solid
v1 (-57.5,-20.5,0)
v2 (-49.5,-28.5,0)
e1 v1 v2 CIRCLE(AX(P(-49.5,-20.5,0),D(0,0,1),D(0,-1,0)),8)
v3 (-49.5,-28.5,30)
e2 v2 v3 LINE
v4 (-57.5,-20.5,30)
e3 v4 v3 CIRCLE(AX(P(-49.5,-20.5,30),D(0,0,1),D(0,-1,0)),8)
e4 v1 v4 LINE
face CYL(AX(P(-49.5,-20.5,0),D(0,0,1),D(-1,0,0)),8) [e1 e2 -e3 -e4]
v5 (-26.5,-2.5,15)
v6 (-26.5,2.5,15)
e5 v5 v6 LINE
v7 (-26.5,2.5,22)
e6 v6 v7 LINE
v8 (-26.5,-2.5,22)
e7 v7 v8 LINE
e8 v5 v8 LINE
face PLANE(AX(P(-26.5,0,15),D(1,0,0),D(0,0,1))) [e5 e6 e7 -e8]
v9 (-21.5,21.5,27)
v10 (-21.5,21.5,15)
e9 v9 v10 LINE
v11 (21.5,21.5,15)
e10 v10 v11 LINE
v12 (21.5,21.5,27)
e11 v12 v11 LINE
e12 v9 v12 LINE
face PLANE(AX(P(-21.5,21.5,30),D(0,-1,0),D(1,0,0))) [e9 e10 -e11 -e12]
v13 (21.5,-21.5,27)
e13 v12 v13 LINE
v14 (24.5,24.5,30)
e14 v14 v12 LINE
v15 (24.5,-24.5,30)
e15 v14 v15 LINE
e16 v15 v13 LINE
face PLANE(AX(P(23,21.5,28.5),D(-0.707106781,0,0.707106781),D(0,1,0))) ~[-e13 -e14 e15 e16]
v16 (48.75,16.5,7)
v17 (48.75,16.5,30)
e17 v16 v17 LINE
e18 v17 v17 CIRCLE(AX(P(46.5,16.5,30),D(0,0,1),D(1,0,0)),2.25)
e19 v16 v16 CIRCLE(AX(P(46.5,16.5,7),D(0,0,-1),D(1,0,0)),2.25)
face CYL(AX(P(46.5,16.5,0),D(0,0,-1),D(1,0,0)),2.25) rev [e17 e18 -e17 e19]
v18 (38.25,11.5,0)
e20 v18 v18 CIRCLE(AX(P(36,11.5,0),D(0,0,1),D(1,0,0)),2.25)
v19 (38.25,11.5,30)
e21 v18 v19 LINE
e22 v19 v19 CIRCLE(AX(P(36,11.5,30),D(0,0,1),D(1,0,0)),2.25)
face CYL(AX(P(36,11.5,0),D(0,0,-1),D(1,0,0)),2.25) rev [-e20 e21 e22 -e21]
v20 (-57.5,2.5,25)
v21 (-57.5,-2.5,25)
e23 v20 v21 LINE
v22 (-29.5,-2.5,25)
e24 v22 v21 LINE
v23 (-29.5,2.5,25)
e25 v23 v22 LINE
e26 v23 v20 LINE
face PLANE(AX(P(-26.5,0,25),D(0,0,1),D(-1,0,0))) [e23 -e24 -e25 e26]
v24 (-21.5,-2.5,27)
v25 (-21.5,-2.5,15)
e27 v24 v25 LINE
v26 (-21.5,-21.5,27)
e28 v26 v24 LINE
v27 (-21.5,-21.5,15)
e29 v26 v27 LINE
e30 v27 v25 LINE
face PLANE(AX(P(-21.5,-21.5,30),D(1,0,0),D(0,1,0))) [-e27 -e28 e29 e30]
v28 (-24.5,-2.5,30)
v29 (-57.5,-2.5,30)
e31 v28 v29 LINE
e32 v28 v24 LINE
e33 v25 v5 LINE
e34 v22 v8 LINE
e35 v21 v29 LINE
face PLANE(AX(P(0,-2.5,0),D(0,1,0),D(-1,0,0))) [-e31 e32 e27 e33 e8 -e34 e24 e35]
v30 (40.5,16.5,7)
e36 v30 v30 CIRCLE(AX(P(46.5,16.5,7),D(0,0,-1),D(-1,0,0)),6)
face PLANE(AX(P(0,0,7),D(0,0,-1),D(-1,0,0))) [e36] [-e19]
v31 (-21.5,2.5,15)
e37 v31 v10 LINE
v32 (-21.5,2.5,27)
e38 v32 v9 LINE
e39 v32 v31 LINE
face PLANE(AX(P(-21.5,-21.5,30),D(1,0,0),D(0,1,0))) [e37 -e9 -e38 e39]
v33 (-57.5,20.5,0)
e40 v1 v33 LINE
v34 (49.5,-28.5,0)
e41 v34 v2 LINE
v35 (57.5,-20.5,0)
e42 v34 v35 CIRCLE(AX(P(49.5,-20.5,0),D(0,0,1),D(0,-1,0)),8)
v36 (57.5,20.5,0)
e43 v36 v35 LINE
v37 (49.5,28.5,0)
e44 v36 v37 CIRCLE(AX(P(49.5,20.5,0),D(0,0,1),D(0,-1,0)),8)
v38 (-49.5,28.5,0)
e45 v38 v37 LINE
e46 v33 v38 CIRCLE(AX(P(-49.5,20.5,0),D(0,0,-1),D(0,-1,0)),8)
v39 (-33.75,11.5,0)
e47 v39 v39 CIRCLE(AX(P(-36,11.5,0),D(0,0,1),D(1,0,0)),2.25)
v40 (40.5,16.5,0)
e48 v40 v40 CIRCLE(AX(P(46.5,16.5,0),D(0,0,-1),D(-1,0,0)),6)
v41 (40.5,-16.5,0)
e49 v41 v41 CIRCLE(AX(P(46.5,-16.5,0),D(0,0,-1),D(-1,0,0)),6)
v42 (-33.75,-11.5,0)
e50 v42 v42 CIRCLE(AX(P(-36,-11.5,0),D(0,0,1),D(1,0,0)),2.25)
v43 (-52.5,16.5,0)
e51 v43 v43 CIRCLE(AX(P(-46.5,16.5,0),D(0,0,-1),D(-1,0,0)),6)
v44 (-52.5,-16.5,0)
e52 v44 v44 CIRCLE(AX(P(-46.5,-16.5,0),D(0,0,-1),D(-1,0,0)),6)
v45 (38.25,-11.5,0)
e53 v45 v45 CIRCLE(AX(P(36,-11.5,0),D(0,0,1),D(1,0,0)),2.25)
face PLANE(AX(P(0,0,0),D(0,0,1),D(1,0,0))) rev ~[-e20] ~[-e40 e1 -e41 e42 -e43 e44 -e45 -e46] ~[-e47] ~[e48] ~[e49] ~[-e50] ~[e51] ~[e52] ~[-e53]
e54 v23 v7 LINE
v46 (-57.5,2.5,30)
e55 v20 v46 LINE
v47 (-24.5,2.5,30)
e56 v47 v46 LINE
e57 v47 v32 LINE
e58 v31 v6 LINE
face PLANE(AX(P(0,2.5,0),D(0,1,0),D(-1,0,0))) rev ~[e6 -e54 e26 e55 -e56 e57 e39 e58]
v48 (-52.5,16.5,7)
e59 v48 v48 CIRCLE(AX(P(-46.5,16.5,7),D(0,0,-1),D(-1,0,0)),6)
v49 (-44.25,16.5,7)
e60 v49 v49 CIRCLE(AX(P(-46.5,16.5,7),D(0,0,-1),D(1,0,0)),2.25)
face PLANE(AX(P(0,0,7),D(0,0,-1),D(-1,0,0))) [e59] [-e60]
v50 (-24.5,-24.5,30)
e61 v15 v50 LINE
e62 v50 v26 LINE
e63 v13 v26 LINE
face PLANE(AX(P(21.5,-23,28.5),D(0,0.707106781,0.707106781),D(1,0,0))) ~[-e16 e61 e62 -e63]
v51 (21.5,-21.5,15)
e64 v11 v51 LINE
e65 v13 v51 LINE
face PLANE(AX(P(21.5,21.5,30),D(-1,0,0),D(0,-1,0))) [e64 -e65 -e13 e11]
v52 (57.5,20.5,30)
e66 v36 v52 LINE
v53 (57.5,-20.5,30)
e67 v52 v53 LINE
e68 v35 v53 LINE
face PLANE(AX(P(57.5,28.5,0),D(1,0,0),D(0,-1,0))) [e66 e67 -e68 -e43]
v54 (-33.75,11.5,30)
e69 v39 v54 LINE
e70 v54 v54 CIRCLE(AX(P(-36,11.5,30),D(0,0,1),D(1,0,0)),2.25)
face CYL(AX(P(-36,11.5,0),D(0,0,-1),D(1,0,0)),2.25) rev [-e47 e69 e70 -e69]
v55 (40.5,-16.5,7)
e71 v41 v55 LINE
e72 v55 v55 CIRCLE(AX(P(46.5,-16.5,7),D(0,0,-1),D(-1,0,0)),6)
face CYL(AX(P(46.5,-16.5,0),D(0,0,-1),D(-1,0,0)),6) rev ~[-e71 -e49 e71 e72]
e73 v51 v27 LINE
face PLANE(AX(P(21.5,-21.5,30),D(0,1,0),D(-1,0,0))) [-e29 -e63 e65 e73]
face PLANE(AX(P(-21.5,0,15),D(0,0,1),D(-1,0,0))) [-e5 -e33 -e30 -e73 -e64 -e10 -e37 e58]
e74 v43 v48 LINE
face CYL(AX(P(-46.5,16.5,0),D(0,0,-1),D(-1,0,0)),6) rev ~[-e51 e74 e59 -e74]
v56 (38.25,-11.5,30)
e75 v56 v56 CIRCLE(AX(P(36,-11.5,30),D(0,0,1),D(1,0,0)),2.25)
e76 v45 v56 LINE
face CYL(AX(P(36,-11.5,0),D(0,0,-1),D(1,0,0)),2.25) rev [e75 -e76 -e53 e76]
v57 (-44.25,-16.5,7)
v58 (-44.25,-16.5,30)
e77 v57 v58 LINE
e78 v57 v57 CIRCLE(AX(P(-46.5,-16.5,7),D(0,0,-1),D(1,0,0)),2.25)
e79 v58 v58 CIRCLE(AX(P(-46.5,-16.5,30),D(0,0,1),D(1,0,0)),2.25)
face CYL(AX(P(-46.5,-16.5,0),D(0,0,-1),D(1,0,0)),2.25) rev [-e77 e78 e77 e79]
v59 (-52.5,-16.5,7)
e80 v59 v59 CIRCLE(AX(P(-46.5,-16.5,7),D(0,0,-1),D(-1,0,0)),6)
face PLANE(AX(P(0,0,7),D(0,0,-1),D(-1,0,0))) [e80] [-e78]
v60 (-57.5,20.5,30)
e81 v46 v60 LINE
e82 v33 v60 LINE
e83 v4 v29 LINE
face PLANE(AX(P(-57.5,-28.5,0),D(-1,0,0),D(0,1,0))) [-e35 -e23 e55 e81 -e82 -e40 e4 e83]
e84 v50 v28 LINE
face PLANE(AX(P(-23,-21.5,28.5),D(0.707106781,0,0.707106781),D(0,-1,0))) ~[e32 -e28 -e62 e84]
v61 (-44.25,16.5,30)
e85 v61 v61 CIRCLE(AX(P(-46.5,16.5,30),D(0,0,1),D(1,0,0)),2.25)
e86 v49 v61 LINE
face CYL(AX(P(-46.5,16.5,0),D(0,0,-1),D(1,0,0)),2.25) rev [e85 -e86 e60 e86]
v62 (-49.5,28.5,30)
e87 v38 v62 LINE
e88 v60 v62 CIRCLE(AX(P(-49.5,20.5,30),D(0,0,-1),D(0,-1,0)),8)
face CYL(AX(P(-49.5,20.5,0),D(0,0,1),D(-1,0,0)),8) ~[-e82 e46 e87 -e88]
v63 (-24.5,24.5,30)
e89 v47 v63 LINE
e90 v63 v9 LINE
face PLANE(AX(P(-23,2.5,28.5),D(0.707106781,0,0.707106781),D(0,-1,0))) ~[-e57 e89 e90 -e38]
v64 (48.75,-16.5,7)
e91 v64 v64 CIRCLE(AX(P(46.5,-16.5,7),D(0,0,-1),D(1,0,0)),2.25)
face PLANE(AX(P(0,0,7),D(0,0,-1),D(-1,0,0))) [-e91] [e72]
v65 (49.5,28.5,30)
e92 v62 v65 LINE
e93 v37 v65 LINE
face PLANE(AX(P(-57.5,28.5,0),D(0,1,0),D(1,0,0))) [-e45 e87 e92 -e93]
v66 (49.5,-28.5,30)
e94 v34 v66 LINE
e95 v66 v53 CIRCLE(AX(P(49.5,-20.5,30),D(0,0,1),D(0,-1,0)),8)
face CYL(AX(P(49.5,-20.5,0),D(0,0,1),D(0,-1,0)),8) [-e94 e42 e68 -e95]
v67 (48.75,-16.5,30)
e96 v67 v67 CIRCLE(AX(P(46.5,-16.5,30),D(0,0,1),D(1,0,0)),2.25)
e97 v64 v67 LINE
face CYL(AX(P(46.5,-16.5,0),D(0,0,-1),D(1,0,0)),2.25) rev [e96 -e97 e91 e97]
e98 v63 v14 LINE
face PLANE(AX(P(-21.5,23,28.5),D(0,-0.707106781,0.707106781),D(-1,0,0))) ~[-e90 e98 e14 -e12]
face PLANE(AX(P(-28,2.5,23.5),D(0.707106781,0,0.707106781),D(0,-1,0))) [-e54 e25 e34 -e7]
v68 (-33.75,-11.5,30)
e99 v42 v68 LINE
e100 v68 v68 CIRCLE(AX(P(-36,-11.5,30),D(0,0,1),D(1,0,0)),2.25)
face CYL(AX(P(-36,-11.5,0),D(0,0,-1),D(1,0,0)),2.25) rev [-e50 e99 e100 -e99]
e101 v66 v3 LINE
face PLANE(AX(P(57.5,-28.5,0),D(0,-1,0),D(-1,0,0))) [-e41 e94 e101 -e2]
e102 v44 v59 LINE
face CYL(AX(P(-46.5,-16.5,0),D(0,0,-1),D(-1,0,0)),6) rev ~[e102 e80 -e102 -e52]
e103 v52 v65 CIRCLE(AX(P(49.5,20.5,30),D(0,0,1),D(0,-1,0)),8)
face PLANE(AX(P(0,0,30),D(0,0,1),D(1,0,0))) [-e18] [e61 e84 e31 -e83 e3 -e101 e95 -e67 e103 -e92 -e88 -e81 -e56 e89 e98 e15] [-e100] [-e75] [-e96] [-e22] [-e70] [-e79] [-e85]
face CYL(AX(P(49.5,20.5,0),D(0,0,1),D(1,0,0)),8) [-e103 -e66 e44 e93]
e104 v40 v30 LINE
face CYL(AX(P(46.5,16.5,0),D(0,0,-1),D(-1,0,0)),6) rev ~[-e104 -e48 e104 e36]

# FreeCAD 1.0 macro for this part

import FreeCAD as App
import Part
import Sketcher

V = App.Vector


def edges_at(feature, points):
    """Names of the edges that pass closest to the given points."""
    edges = feature.Shape.Edges
    near = lambda p: min(range(len(edges)), key=lambda i: edges[i].distToShape(Part.Vertex(*p))[0])
    return sorted({f"Edge{near(p) + 1}" for p in points})


def add_polygon(sketch, points):
    """Adds a closed chain of lines whose ends are joined by coincident constraints."""
    first, n = sketch.GeometryCount, len(points)
    for a, b in zip(points, points[1:] + points[:1]):
        sketch.addGeometry(Part.LineSegment(App.Vector(*a, 0), App.Vector(*b, 0)), False)
    for i in range(n):
        sketch.addConstraint(Sketcher.Constraint("Coincident", first + i, 2, first + (i + 1) % n, 1))

doc = App.newDocument("Part")
params = doc.addObject("Spreadsheet::Sheet", "Params")
for row, (alias, value) in enumerate([
    ("sketch1_diameter", "4.5 mm"),
    ("sketch1_width", "115 mm"),
    ("sketch1_height", "57 mm"),
    ("pad1_length", "30 mm"),
    ("sketch2_diameter", "12 mm"),
    ("sketch2_diameter2", "4.5 mm"),
    ("pocket1_length", "7 mm"),
    ("sketch3_width", "43 mm"),
    ("pocket2_length", "15 mm"),
    ("sketch4_width", "5 mm"),
    ("sketch4_width2", "36 mm"),
    ("sketch4_height", "15 mm"),
    ("pocket3_length", "5 mm"),
    ("chamfer_size", "3 mm"),
    ("fillet_radius", "8 mm"),
], start=1):
    params.set(f"A{row}", alias)
    params.set(f"B{row}", "=" + value)
    params.setAlias(f"B{row}", alias)

body = doc.addObject("PartDesign::Body", "Body")

# Sketch on XY plane
sketch1 = body.newObject("Sketcher::SketchObject", "Sketch")
sketch1.AttachmentSupport = (doc.getObject("XY_Plane"), [""])
sketch1.MapMode = "FlatFace"
add_polygon(sketch1, [(-57.5, -28.5), (57.5, -28.5), (57.5, 28.5), (-57.5, 28.5)])  # lines 0-3
sketch1.addGeometry(Part.Circle(V(-46.5, -16.5, 0), V(0, 0, 1), 2.25), False)  # 4
sketch1.addGeometry(Part.Circle(V(-36, -11.5, 0), V(0, 0, 1), 2.25), False)  # 5
sketch1.addGeometry(Part.Circle(V(46.5, -16.5, 0), V(0, 0, 1), 2.25), False)  # 6
sketch1.addGeometry(Part.Circle(V(36, -11.5, 0), V(0, 0, 1), 2.25), False)  # 7
sketch1.addGeometry(Part.Circle(V(-36, 11.5, 0), V(0, 0, 1), 2.25), False)  # 8
sketch1.addGeometry(Part.Circle(V(-46.5, 16.5, 0), V(0, 0, 1), 2.25), False)  # 9
sketch1.addGeometry(Part.Circle(V(36, 11.5, 0), V(0, 0, 1), 2.25), False)  # 10
sketch1.addGeometry(Part.Circle(V(46.5, 16.5, 0), V(0, 0, 1), 2.25), False)  # 11
sketch1.addConstraint([
    Sketcher.Constraint("Horizontal", 0),
    Sketcher.Constraint("Vertical", 1),
    Sketcher.Constraint("Horizontal", 2),
    Sketcher.Constraint("Vertical", 3),
    Sketcher.Constraint("Equal", 4, 5),
    Sketcher.Constraint("Equal", 5, 6),
    Sketcher.Constraint("Equal", 6, 7),
    Sketcher.Constraint("Equal", 7, 8),
    Sketcher.Constraint("Equal", 8, 9),
    Sketcher.Constraint("Equal", 9, 10),
    Sketcher.Constraint("Equal", 10, 11),
    Sketcher.Constraint("Symmetric", 7, 3, 8, 3, -1, 1),
    Sketcher.Constraint("Symmetric", 6, 3, 9, 3, -1, 1),
    Sketcher.Constraint("Symmetric", 5, 3, 10, 3, -1, 1),
    Sketcher.Constraint("Symmetric", 4, 3, 11, 3, -1, 1),
    Sketcher.Constraint("Symmetric", 0, 2, 2, 2, -1, 1),
    Sketcher.Constraint("Symmetric", 4, 3, 6, 3, -2),
    Sketcher.Constraint("Symmetric", 5, 3, 7, 3, -2),
    Sketcher.Constraint("Diameter", 4, 4.5),
    Sketcher.Constraint("DistanceX", 0, 1, 0, 2, 115.0),
    Sketcher.Constraint("DistanceY", 1, 1, 1, 2, 57.0),
    Sketcher.Constraint("DistanceX", 4, 3, 6, 3, 93.0),
    Sketcher.Constraint("DistanceX", 5, 3, 7, 3, 72.0),
    Sketcher.Constraint("DistanceY", 5, 3, 8, 3, 23.0),
    Sketcher.Constraint("DistanceY", 4, 3, 9, 3, 33.0),
])
sketch1.setExpression("Constraints[22]", "Params.sketch1_diameter")
sketch1.setExpression("Constraints[23]", "Params.sketch1_width")
sketch1.setExpression("Constraints[24]", "Params.sketch1_height")
pad1 = body.newObject("PartDesign::Pad", "Pad")
pad1.Profile = sketch1
pad1.setExpression("Length", "Params.pad1_length")

# Sketch on XY plane
sketch2 = body.newObject("Sketcher::SketchObject", "Sketch001")
sketch2.AttachmentSupport = (doc.getObject("XY_Plane"), [""])
sketch2.MapMode = "FlatFace"
sketch2.addGeometry([
    Part.Circle(V(46.5, 16.5, 0), V(0, 0, 1), 6),  # 0
    Part.Circle(V(46.5, 16.5, 0), V(0, 0, 1), 2.25),  # 1
    Part.Circle(V(46.5, -16.5, 0), V(0, 0, 1), 6),  # 2
    Part.Circle(V(46.5, -16.5, 0), V(0, 0, 1), 2.25),  # 3
    Part.Circle(V(-46.5, -16.5, 0), V(0, 0, 1), 6),  # 4
    Part.Circle(V(-46.5, -16.5, 0), V(0, 0, 1), 2.25),  # 5
    Part.Circle(V(-46.5, 16.5, 0), V(0, 0, 1), 6),  # 6
    Part.Circle(V(-46.5, 16.5, 0), V(0, 0, 1), 2.25),  # 7
], False)
sketch2.addConstraint([
    Sketcher.Constraint("Coincident", 1, 3, 0, 3),
    Sketcher.Constraint("Coincident", 3, 3, 2, 3),
    Sketcher.Constraint("Coincident", 5, 3, 4, 3),
    Sketcher.Constraint("Coincident", 7, 3, 6, 3),
    Sketcher.Constraint("Equal", 0, 2),
    Sketcher.Constraint("Equal", 1, 3),
    Sketcher.Constraint("Equal", 2, 4),
    Sketcher.Constraint("Equal", 3, 5),
    Sketcher.Constraint("Equal", 4, 6),
    Sketcher.Constraint("Equal", 5, 7),
    Sketcher.Constraint("Symmetric", 0, 3, 4, 3, -1, 1),
    Sketcher.Constraint("Symmetric", 2, 3, 6, 3, -1, 1),
    Sketcher.Constraint("Symmetric", 2, 3, 4, 3, -2),
    Sketcher.Constraint("Diameter", 0, 12.0),
    Sketcher.Constraint("Diameter", 1, 4.5),
    Sketcher.Constraint("DistanceY", 2, 3, 0, 3, 33.0),
    Sketcher.Constraint("DistanceX", 4, 3, 2, 3, 93.0),
])
sketch2.setExpression("Constraints[13]", "Params.sketch2_diameter")
sketch2.setExpression("Constraints[14]", "Params.sketch2_diameter2")
pocket1 = body.newObject("PartDesign::Pocket", "Pocket")
pocket1.Profile = sketch2
pocket1.setExpression("Length", "Params.pocket1_length")
pocket1.Reversed = True

# Sketch on XY plane
sketch3 = body.newObject("Sketcher::SketchObject", "Sketch002")
sketch3.AttachmentSupport = (doc.getObject("XY_Plane"), [""])
sketch3.MapMode = "FlatFace"
sketch3.AttachmentOffset = App.Placement(V(0, 0, 30), App.Rotation())
add_polygon(sketch3, [(-21.5, -21.5), (21.5, -21.5), (21.5, 21.5), (-21.5, 21.5)])  # lines 0-3
sketch3.addConstraint([
    Sketcher.Constraint("Horizontal", 0),
    Sketcher.Constraint("Vertical", 1),
    Sketcher.Constraint("Horizontal", 2),
    Sketcher.Constraint("Vertical", 3),
    Sketcher.Constraint("Symmetric", 0, 2, 2, 2, -1, 1),
    Sketcher.Constraint("Equal", 2, 1),
    Sketcher.Constraint("DistanceX", 0, 1, 0, 2, 43.0),
])
sketch3.setExpression("Constraints[10]", "Params.sketch3_width")
pocket2 = body.newObject("PartDesign::Pocket", "Pocket001")
pocket2.Profile = sketch3
pocket2.setExpression("Length", "Params.pocket2_length")

# Sketch on XZ plane
sketch4 = body.newObject("Sketcher::SketchObject", "Sketch003")
sketch4.AttachmentSupport = (doc.getObject("XZ_Plane"), [""])
sketch4.MapMode = "FlatFace"
add_polygon(sketch4, [(-57.5, 30), (-21.5, 30), (-21.5, 15), (-26.5, 15), (-26.5, 25), (-57.5, 25)])  # lines 0-5
sketch4.addConstraint([
    Sketcher.Constraint("Horizontal", 0),
    Sketcher.Constraint("Vertical", 1),
    Sketcher.Constraint("Horizontal", 2),
    Sketcher.Constraint("Vertical", 3),
    Sketcher.Constraint("Horizontal", 4),
    Sketcher.Constraint("Vertical", 5),
    Sketcher.Constraint("Equal", 2, 5),
    Sketcher.Constraint("DistanceX", 2, 2, 2, 1, 5.0),
    Sketcher.Constraint("DistanceX", 0, 1, 0, 2, 36.0),
    Sketcher.Constraint("DistanceY", 1, 2, 1, 1, 15.0),
    Sketcher.Constraint("DistanceY", -1, 1, 0, 2, 30.0),
    Sketcher.Constraint("DistanceX", 0, 2, -1, 1, 21.5),
])
sketch4.setExpression("Constraints[13]", "Params.sketch4_width")
sketch4.setExpression("Constraints[14]", "Params.sketch4_width2")
sketch4.setExpression("Constraints[15]", "Params.sketch4_height")
pocket3 = body.newObject("PartDesign::Pocket", "Pocket002")
pocket3.Profile = sketch4
pocket3.setExpression("Length", "Params.pocket3_length")
pocket3.Midplane = True
doc.recompute()

chamfer = body.newObject("PartDesign::Chamfer", "Chamfer")
chamfer.Base = (pocket3, edges_at(pocket3, [
    (-21.5, 12, 30),
    (0, 21.5, 30),
    (-21.5, -12, 30),
    (0, -21.5, 30),
    (21.5, 0, 30),
    (-26.5, 0, 25),
]))
chamfer.setExpression("Size", "Params.chamfer_size")
doc.recompute()

fillet = body.newObject("PartDesign::Fillet", "Fillet")
fillet.Base = (chamfer, edges_at(chamfer, [
    (-57.5, 28.5, 15),
    (-57.5, -28.5, 15),
    (57.5, -28.5, 15),
    (57.5, 28.5, 15),
]))
fillet.setExpression("Radius", "Params.fillet_radius")

doc.recompute()
